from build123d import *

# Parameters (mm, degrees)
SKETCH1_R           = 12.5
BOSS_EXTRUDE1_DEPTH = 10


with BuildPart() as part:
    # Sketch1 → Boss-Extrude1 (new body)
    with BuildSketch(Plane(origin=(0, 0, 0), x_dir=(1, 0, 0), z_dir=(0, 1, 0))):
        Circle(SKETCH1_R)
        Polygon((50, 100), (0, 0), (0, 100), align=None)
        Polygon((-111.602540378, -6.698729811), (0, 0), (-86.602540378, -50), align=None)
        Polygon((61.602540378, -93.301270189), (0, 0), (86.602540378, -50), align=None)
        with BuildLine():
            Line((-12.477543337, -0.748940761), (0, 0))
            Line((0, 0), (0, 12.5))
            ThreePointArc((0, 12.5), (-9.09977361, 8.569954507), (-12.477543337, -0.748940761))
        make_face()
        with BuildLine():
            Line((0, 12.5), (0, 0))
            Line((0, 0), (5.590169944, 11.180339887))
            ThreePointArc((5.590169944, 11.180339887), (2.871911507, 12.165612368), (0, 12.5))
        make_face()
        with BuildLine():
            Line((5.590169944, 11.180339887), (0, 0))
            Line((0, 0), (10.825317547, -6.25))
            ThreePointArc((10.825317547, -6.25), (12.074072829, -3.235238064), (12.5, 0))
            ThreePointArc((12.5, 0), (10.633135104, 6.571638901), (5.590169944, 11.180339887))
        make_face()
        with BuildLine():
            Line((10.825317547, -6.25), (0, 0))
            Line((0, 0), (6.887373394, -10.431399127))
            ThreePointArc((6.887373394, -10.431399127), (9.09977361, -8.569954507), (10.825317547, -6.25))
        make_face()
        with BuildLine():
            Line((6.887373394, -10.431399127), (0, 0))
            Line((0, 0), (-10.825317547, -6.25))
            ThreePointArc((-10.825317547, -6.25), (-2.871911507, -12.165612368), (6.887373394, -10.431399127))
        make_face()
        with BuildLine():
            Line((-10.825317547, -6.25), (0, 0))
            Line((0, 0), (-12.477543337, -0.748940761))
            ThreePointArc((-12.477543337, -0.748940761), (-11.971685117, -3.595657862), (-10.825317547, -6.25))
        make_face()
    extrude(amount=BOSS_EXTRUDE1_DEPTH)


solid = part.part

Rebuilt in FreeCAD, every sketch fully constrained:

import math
import FreeCAD as App
import Part
import Sketcher
from FreeCAD import Vector
Q = App.Units.Quantity

doc = App.newDocument("Part")
body = doc.addObject("PartDesign::Body", "Body")

sketch1 = body.newObject("Sketcher::SketchObject", "Sketch")
sketch1.AttachmentSupport = (doc.getObject("XZ_Plane"), [""])
sketch1.MapMode = "FlatFace"
sketch1.addGeometry([
    Part.LineSegment(Vector(6, -11, 0), Vector(50, -100, 0)),
    Part.LineSegment(Vector(50, -100, 0), Vector(0, -100, 0)),
    Part.LineSegment(Vector(0, -100, 0), Vector(0, -12, 0)),
    Part.ArcOfCircle(Part.Circle(Vector(0, 0, 0), Vector(0, 0, 1), 12), math.radians(177), math.radians(270)),
    Part.LineSegment(Vector(-12, 1, 0), Vector(-112, 7, 0)),
    Part.LineSegment(Vector(-112, 7, 0), Vector(-87, 50, 0)),
    Part.LineSegment(Vector(-87, 50, 0), Vector(-11, 6, 0)),
    Part.ArcOfCircle(Part.Circle(Vector(0, 0, 0), Vector(0, 0, 1), 12), math.radians(57), math.radians(150)),
    Part.LineSegment(Vector(7, 10, 0), Vector(62, 93, 0)),
    Part.LineSegment(Vector(62, 93, 0), Vector(87, 50, 0)),
    Part.LineSegment(Vector(87, 50, 0), Vector(11, 6, 0)),
    Part.ArcOfCircle(Part.Circle(Vector(0, 0, 0), Vector(0, 0, 1), 12), math.radians(-63), math.radians(30)),
], False)
sketch1.addConstraint([
    Sketcher.Constraint("Coincident", 0, 2, 1, 1),
    Sketcher.Constraint("Coincident", 1, 2, 2, 1),
    Sketcher.Constraint("Coincident", 2, 2, 3, 2),
    Sketcher.Constraint("Coincident", 3, 1, 4, 1),
    Sketcher.Constraint("Coincident", 4, 2, 5, 1),
    Sketcher.Constraint("Coincident", 5, 2, 6, 1),
    Sketcher.Constraint("Coincident", 6, 2, 7, 2),
    Sketcher.Constraint("Coincident", 7, 1, 8, 1),
    Sketcher.Constraint("Coincident", 8, 2, 9, 1),
    Sketcher.Constraint("Coincident", 9, 2, 10, 1),
    Sketcher.Constraint("Coincident", 10, 2, 11, 2),
    Sketcher.Constraint("Coincident", 11, 1, 0, 1),
    Sketcher.Constraint("Horizontal", 1),
    Sketcher.Constraint("Vertical", 2),
    Sketcher.Constraint("Coincident", 3, 3, -1, 1),
    Sketcher.Constraint("Coincident", 7, 3, -1, 1),
    Sketcher.Constraint("Coincident", 11, 3, -1, 1),
    Sketcher.Constraint("Equal", 3, 7),
    Sketcher.Constraint("Equal", 7, 11),
    Sketcher.Constraint("Symmetric", 5, 2, 9, 2, -2),
    Sketcher.Constraint("PointOnObject", 1, 2, -2),
    Sketcher.Constraint("Perpendicular", 5, 6),
    Sketcher.Constraint("Perpendicular", 9, 10),
    Sketcher.Constraint("Horizontal", 6, 2, 10, 2),
    Sketcher.Constraint("Equal", 0, 4),
    Sketcher.Constraint("Equal", 4, 8),
    Sketcher.Constraint("Equal", 5, 9),
    Sketcher.Constraint("Radius", 3, Q("12.5 mm")),
    Sketcher.Constraint("DistanceX", 1, 2, 1, 1, Q("50 mm")),
    Sketcher.Constraint("Angle", 5, Q("60 deg")),
    Sketcher.Constraint("Distance", 5, Q("50 mm")),
    Sketcher.Constraint("DistanceY", 2, 1, 2, 2, Q("87.5 mm")),
    Sketcher.Constraint("DistanceY", -1, 1, 7, 1, Q("10.431399 mm")),
    Sketcher.Constraint("DistanceY", -1, 1, 3, 1, Q("0.748941 mm")),
    Sketcher.Constraint("DistanceX", -1, 1, 11, 1, Q("5.59017 mm")),
])
pad1 = body.newObject("PartDesign::Pad", "Pad")
pad1.Profile = sketch1
pad1.Length = 10
pad1.Reversed = True

doc.recompute()
